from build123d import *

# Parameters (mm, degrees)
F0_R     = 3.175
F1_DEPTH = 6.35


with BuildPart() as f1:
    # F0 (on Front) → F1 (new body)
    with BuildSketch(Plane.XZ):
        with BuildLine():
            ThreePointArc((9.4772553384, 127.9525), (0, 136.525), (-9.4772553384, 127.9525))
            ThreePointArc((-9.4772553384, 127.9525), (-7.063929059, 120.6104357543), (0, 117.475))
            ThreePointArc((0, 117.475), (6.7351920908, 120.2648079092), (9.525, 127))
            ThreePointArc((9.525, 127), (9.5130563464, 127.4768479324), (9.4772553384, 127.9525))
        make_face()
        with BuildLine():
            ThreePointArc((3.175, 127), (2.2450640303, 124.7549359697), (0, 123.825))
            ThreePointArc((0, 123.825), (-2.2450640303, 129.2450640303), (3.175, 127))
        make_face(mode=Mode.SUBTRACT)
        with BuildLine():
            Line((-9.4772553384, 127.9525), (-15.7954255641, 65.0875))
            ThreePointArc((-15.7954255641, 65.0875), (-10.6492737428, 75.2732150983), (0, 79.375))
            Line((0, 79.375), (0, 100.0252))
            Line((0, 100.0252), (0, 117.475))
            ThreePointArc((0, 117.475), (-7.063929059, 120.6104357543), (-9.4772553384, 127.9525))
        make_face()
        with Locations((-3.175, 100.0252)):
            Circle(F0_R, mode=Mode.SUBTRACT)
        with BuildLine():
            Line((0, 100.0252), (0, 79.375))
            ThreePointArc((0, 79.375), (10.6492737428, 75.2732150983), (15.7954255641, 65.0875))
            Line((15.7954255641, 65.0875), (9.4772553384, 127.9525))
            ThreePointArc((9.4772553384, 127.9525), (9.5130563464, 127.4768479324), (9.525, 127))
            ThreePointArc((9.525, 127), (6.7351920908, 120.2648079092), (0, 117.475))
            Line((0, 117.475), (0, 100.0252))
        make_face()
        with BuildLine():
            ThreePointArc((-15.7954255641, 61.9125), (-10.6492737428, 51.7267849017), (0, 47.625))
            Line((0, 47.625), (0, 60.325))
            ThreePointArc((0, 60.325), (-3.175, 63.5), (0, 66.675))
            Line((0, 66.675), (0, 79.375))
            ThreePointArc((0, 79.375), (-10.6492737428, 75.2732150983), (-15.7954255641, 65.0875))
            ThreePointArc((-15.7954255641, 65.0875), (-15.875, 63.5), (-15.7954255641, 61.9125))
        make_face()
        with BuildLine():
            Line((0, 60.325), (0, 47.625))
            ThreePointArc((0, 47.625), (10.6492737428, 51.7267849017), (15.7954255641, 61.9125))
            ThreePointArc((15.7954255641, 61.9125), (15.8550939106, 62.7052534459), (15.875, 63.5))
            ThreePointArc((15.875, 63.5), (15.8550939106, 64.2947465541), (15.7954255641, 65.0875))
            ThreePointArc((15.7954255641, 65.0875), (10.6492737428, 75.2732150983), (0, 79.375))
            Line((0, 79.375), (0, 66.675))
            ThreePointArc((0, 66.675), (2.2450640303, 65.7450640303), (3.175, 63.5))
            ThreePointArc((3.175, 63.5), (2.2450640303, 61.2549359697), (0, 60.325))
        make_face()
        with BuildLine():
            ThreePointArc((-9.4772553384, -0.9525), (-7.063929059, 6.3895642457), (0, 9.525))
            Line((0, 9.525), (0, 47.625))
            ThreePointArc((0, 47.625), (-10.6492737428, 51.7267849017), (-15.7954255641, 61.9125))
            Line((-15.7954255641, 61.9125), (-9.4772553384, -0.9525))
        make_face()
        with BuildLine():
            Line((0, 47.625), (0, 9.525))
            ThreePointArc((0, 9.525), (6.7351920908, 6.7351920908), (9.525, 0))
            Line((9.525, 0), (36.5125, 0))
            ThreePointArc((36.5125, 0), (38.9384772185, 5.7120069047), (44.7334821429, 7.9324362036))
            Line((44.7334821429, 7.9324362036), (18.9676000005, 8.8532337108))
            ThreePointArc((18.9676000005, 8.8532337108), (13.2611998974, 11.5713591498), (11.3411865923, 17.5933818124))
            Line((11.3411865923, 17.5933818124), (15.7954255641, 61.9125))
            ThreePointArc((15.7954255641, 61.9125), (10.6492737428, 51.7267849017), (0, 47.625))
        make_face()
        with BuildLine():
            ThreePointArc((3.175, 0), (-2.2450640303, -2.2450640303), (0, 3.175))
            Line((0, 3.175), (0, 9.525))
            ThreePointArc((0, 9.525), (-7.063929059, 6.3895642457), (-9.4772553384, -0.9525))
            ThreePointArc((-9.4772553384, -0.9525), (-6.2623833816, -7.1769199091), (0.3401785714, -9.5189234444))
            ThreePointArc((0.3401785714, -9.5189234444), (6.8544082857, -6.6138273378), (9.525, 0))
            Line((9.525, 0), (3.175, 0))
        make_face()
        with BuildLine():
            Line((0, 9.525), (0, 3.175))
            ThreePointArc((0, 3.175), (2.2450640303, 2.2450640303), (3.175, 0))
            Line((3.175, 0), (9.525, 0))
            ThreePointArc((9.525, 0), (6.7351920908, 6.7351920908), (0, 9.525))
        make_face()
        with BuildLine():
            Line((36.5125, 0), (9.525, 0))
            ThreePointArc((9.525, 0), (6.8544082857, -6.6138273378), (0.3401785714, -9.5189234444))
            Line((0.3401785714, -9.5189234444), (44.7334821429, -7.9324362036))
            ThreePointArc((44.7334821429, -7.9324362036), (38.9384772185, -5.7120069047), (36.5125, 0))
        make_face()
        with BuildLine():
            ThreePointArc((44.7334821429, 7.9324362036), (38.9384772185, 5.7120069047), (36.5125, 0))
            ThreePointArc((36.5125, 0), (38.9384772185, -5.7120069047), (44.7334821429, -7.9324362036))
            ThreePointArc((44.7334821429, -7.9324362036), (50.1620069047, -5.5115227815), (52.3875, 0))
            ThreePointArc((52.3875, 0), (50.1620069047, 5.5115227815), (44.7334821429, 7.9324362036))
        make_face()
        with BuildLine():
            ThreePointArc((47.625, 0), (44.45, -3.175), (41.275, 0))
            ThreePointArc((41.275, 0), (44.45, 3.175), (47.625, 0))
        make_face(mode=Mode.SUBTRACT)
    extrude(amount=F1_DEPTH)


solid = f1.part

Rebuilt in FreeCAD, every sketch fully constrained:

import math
import FreeCAD as App
import Part
import Sketcher
from FreeCAD import Vector
Q = App.Units.Quantity

doc = App.newDocument("Part")
body = doc.addObject("PartDesign::Body", "Body")

sketch1 = doc.addObject("Sketcher::SketchObject", "Sketch")
body.addObject(sketch1)
sketch1.AttachmentSupport = (doc.XZ_Plane, [""])
sketch1.MapMode = "FlatFace"
sketch1.addGeometry([
    Part.LineSegment(Vector(44.7, 7.9, 0), Vector(19, 8.9, 0)),
    Part.ArcOfCircle(Part.Circle(Vector(19.3, 16.8, 0), Vector(0, 0, 1), 8), math.radians(174), math.radians(268)),
    Part.LineSegment(Vector(11.3, 17.6, 0), Vector(15.8, 61.9, 0)),
    Part.ArcOfCircle(Part.Circle(Vector(0, 63.5, 0), Vector(0, 0, 1), 15.9), math.radians(-5.74), math.radians(0)),
    Part.ArcOfCircle(Part.Circle(Vector(0, 63.5, 0), Vector(0, 0, 1), 15.9), math.radians(0), math.radians(5.74)),
    Part.LineSegment(Vector(15.8, 65.1, 0), Vector(9.5, 128, 0)),
    Part.ArcOfCircle(Part.Circle(Vector(0, 127, 0), Vector(0, 0, 1), 9.5), math.radians(6), math.radians(174)),
    Part.LineSegment(Vector(-9.5, 128, 0), Vector(-15.8, 65.1, 0)),
    Part.ArcOfCircle(Part.Circle(Vector(0, 63.5, 0), Vector(0, 0, 1), 15.9), math.radians(174.26), math.radians(185.74)),
    Part.LineSegment(Vector(-15.8, 61.9, 0), Vector(-9.5, -1, 0)),
    Part.ArcOfCircle(Part.Circle(Vector(0, 0, 0), Vector(0, 0, 1), 9.5), math.radians(-174), math.radians(-88)),
    Part.LineSegment(Vector(0.3, -9.5, 0), Vector(44.7, -7.9, 0)),
    Part.ArcOfCircle(Part.Circle(Vector(44.5, 0, 0), Vector(0, 0, 1), 7.9), math.radians(-88), math.radians(0)),
    Part.ArcOfCircle(Part.Circle(Vector(44.5, 0, 0), Vector(0, 0, 1), 7.9), math.radians(0), math.radians(88)),
    Part.ArcOfCircle(Part.Circle(Vector(0, 0, 0), Vector(0, 0, 1), 3.2), math.radians(90), math.radians(360)),
    Part.ArcOfCircle(Part.Circle(Vector(0, 0, 0), Vector(0, 0, 1), 3.2), math.radians(0), math.radians(90)),
    Part.Circle(Vector(44.5, 0, 0), Vector(0, 0, 1), 3.2),
    Part.ArcOfCircle(Part.Circle(Vector(0, 63.5, 0), Vector(0, 0, 1), 3.2), math.radians(90), math.radians(270)),
    Part.ArcOfCircle(Part.Circle(Vector(0, 63.5, 0), Vector(0, 0, 1), 3.2), math.radians(0), math.radians(90)),
    Part.ArcOfCircle(Part.Circle(Vector(0, 63.5, 0), Vector(0, 0, 1), 3.2), math.radians(-90), math.radians(0)),
    Part.Circle(Vector(-3.2, 100, 0), Vector(0, 0, 1), 3.2),
    Part.ArcOfCircle(Part.Circle(Vector(0, 127, 0), Vector(0, 0, 1), 3.2), math.radians(0), math.radians(270)),
    Part.ArcOfCircle(Part.Circle(Vector(0, 127, 0), Vector(0, 0, 1), 3.2), math.radians(-90), math.radians(0)),
], False)
sketch1.addConstraint([
    Sketcher.Constraint("Tangent", 0, 2, 1, 2),
    Sketcher.Constraint("Tangent", 1, 1, 2, 1),
    Sketcher.Constraint("Tangent", 2, 2, 3, 1),
    Sketcher.Constraint("Tangent", 3, 2, 4, 1),
    Sketcher.Constraint("Tangent", 4, 2, 5, 1),
    Sketcher.Constraint("Tangent", 5, 2, 6, 1),
    Sketcher.Constraint("Tangent", 6, 2, 7, 1),
    Sketcher.Constraint("Tangent", 7, 2, 8, 1),
    Sketcher.Constraint("Tangent", 8, 2, 9, 1),
    Sketcher.Constraint("Tangent", 9, 2, 10, 1),
    Sketcher.Constraint("Tangent", 10, 2, 11, 1),
    Sketcher.Constraint("Tangent", 11, 2, 12, 1),
    Sketcher.Constraint("Tangent", 12, 2, 13, 1),
    Sketcher.Constraint("Tangent", 13, 2, 0, 1),
    Sketcher.Constraint("Tangent", 14, 1, 15, 2),
    Sketcher.Constraint("Coincident", 15, 1, 14, 2),
    Sketcher.Constraint("Tangent", 17, 1, 18, 2),
    Sketcher.Constraint("Tangent", 18, 1, 19, 2),
    Sketcher.Constraint("Tangent", 19, 1, 17, 2),
    Sketcher.Constraint("Tangent", 21, 1, 22, 2),
    Sketcher.Constraint("Coincident", 22, 1, 21, 2),
    Sketcher.Constraint("Coincident", 10, 3, -1, 1),
    Sketcher.Constraint("Coincident", 14, 3, -1, 1),
    Sketcher.Constraint("Coincident", 8, 3, 3, 3),
    Sketcher.Constraint("Coincident", 16, 3, 12, 3),
    Sketcher.Constraint("Coincident", 17, 3, 3, 3),
    Sketcher.Constraint("Coincident", 21, 3, 6, 3),
    Sketcher.Constraint("Equal", 3, 4),
    Sketcher.Constraint("Equal", 4, 8),
    Sketcher.Constraint("Equal", 6, 10),
    Sketcher.Constraint("Equal", 12, 13),
    Sketcher.Constraint("Equal", 15, 16),
    Sketcher.Constraint("Equal", 16, 17),
    Sketcher.Constraint("Equal", 19, 20),
    Sketcher.Constraint("Equal", 20, 21),
    Sketcher.Constraint("Symmetric", 5, 2, 6, 2, -2),
    Sketcher.Constraint("Symmetric", 11, 2, 13, 2, -1),
    Sketcher.Constraint("PointOnObject", 12, 2, -1),
    Sketcher.Constraint("PointOnObject", 14, 1, -2),
    Sketcher.Constraint("PointOnObject", 15, 1, -1),
    Sketcher.Constraint("PointOnObject", 17, 1, -2),
    Sketcher.Constraint("PointOnObject", 19, 1, -2),
    Sketcher.Constraint("PointOnObject", 22, 1, -2),
    Sketcher.Constraint("Parallel", 2, 7),
    Sketcher.Constraint("Parallel", 5, 9),
    Sketcher.Constraint("Horizontal", 19, 3, 3, 2),
    Sketcher.Constraint("Horizontal", 3, 2, 18, 1),
    Sketcher.Constraint("Horizontal", 22, 3, 21, 1),
    Sketcher.Constraint("Diameter", 16, Q("0.25 in")),
    Sketcher.Constraint("DistanceY", -1, 1, 6, 3, Q("5 in")),
    Sketcher.Constraint("Radius", 1, Q("0.313 in")),
    Sketcher.Constraint("Radius", 3, Q("0.625 in")),
    Sketcher.Constraint("Radius", 6, Q("0.375 in")),
    Sketcher.Constraint("Radius", 12, Q("0.3125 in")),
    Sketcher.Constraint("DistanceX", -1, 1, 12, 3, Q("1.75 in")),
    Sketcher.Constraint("DistanceX", 20, 3, -1, 1, Q("0.125 in")),
    Sketcher.Constraint("DistanceY", -1, 1, 20, 3, Q("3.938 in")),
])
pad1 = doc.addObject("PartDesign::Pad", "Pad")
body.addObject(pad1)
pad1.Profile = sketch1
pad1.Length = Q("0.25 in")

doc.recompute()
